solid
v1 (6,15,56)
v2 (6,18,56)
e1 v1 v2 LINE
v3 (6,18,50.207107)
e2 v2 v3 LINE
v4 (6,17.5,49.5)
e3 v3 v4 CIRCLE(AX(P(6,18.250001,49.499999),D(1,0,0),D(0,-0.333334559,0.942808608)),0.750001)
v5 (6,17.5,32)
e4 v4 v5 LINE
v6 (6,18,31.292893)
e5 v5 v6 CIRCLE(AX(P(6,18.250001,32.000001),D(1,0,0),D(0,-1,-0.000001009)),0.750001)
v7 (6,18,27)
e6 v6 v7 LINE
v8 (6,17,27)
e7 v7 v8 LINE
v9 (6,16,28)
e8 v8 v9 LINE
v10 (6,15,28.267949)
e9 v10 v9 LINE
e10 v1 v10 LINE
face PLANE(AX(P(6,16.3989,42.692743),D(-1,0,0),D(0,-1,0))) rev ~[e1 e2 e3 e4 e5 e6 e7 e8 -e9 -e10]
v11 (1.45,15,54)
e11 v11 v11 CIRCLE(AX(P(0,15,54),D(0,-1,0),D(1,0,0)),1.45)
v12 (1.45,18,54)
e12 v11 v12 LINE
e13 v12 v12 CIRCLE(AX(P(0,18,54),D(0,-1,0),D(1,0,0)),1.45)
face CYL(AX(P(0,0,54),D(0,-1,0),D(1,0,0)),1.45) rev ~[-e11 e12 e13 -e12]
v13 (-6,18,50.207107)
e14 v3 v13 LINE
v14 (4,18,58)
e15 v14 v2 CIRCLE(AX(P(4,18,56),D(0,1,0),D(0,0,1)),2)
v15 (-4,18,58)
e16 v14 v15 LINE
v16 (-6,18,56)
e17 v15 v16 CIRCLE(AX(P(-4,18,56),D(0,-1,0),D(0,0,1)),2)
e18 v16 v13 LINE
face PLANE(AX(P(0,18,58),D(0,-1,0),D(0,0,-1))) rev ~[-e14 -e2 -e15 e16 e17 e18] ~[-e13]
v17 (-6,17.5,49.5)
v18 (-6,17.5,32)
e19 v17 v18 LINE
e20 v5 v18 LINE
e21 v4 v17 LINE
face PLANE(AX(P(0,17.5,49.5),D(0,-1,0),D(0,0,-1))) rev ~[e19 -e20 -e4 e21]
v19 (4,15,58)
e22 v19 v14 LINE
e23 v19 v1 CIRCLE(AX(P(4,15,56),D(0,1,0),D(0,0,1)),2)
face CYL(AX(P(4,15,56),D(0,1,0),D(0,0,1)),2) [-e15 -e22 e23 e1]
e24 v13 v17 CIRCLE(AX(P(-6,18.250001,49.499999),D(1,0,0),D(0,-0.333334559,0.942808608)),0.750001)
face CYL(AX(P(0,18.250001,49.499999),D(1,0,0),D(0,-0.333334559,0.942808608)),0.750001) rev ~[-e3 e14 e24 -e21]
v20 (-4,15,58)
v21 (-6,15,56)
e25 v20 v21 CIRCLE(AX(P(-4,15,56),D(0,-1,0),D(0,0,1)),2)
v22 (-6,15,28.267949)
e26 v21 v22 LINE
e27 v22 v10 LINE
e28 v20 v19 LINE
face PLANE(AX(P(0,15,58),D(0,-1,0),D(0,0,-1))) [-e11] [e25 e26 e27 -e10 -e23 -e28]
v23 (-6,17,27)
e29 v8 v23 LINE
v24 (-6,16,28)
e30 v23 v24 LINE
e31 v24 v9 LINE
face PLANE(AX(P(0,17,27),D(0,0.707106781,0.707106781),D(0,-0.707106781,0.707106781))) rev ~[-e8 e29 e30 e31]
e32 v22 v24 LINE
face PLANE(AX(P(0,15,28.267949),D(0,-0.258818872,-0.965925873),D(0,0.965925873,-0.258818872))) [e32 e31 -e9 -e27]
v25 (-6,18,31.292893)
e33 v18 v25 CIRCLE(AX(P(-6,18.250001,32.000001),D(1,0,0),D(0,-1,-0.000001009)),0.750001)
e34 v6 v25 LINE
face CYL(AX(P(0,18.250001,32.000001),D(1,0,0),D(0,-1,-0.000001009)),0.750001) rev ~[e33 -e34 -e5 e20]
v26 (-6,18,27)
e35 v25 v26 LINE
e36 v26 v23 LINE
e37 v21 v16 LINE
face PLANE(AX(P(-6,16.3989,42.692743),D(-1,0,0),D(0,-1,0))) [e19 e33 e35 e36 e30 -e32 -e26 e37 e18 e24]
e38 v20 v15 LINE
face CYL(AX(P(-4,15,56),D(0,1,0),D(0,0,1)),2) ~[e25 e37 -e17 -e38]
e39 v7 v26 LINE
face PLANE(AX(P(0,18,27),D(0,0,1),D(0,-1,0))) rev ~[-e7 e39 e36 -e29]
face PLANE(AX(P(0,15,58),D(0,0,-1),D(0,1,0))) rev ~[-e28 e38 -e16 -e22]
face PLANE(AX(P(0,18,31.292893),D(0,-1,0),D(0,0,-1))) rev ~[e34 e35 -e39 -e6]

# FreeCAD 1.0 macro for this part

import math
import FreeCAD as App
import Part
import Sketcher

V = App.Vector
Q = App.Units.Quantity


def edges_at(feature, points):
    """Names of the edges that pass closest to the given points."""
    edges = feature.Shape.Edges
    near = lambda p: min(range(len(edges)), key=lambda i: edges[i].distToShape(Part.Vertex(*p))[0])
    return sorted({f"Edge{near(p) + 1}" for p in points})

doc = App.newDocument("Part")
params = doc.addObject("Spreadsheet::Sheet", "Params")
for row, (alias, value) in enumerate([
    ("sketch1_width", "3 mm"),
    ("sketch1_width2", "1 mm"),
    ("sketch1_radius", "0.750001 mm"),
    ("sketch1_height", "17.5 mm"),
    ("pad1_length", "12 mm"),
    ("fillet_radius", "2 mm"),
    ("sketch2_diameter", "2.9 mm"),
], start=1):
    params.set(f"A{row}", alias)
    params.set(f"B{row}", "=" + value)
    params.setAlias(f"B{row}", alias)

body = doc.addObject("PartDesign::Body", "Body")

# Sketch on YZ plane
sketch1 = body.newObject("Sketcher::SketchObject", "Sketch")
sketch1.AttachmentSupport = (doc.getObject("YZ_Plane"), [""])
sketch1.MapMode = "FlatFace"
sketch1.addGeometry([
    Part.LineSegment(V(18, 58, 0), V(15, 58, 0)),  # 0
    Part.LineSegment(V(15, 58, 0), V(15, 28.3, 0)),  # 1
    Part.LineSegment(V(15, 28.3, 0), V(16, 28, 0)),  # 2
    Part.LineSegment(V(16, 28, 0), V(17, 27, 0)),  # 3
    Part.LineSegment(V(17, 27, 0), V(18, 27, 0)),  # 4
    Part.LineSegment(V(18, 27, 0), V(18, 31.3, 0)),  # 5
    Part.ArcOfCircle(Part.Circle(V(18.3, 32, 0), V(0, 0, 1), 0.8), math.radians(-180), math.radians(-109)),  # 6
    Part.LineSegment(V(17.5, 32, 0), V(17.5, 49.5, 0)),  # 7
    Part.ArcOfCircle(Part.Circle(V(18.3, 49.5, 0), V(0, 0, 1), 0.8), math.radians(109), math.radians(180)),  # 8
    Part.LineSegment(V(18, 50.2, 0), V(18, 58, 0)),  # 9
], False)
sketch1.addConstraint([
    Sketcher.Constraint("Coincident", 0, 2, 1, 1),
    Sketcher.Constraint("Coincident", 1, 2, 2, 1),
    Sketcher.Constraint("Coincident", 2, 2, 3, 1),
    Sketcher.Constraint("Coincident", 3, 2, 4, 1),
    Sketcher.Constraint("Coincident", 4, 2, 5, 1),
    Sketcher.Constraint("Coincident", 5, 2, 6, 2),
    Sketcher.Constraint("Tangent", 6, 1, 7, 1),
    Sketcher.Constraint("Tangent", 7, 2, 8, 2),
    Sketcher.Constraint("Coincident", 8, 1, 9, 1),
    Sketcher.Constraint("Coincident", 9, 2, 0, 1),
    Sketcher.Constraint("Horizontal", 0),
    Sketcher.Constraint("Vertical", 1),
    Sketcher.Constraint("Horizontal", 4),
    Sketcher.Constraint("Vertical", 5),
    Sketcher.Constraint("Vertical", 7),
    Sketcher.Constraint("Vertical", 9),
    Sketcher.Constraint("Equal", 6, 8),
    Sketcher.Constraint("Vertical", 5, 2, 8, 1),
    Sketcher.Constraint("DistanceX", 0, 2, 0, 1, 3.0),
    Sketcher.Constraint("DistanceX", 4, 1, 4, 2, 1.0),
    Sketcher.Constraint("Angle", 2, Q("-14.99999 deg")),
    Sketcher.Constraint("Angle", 3, Q("-45 deg")),
    Sketcher.Constraint("Radius", 6, 0.750001),
    Sketcher.Constraint("DistanceY", 7, 1, 7, 2, 17.5),
    Sketcher.Constraint("DistanceY", -1, 1, 6, 3, 32.000001),
    Sketcher.Constraint("DistanceX", -1, 1, 0, 2, 15.0),
    Sketcher.Constraint("DistanceY", -1, 1, 0, 2, 58.0),
    Sketcher.Constraint("DistanceX", -1, 1, 2, 2, 16.0),
    Sketcher.Constraint("DistanceY", -1, 1, 2, 2, 28.0),
    Sketcher.Constraint("DistanceX", -1, 1, 6, 1, 17.5),
])
sketch1.setExpression("Constraints[18]", "Params.sketch1_width")
sketch1.setExpression("Constraints[19]", "Params.sketch1_width2")
sketch1.setExpression("Constraints[22]", "Params.sketch1_radius")
sketch1.setExpression("Constraints[23]", "Params.sketch1_height")
pad1 = body.newObject("PartDesign::Pad", "Pad")
pad1.Profile = sketch1
pad1.setExpression("Length", "Params.pad1_length")
pad1.Midplane = True
doc.recompute()

fillet = body.newObject("PartDesign::Fillet", "Fillet")
fillet.Base = (pad1, edges_at(pad1, [(6, 16.5, 58), (-6, 16.5, 58)]))
fillet.setExpression("Radius", "Params.fillet_radius")

# Sketch on XZ plane
sketch2 = body.newObject("Sketcher::SketchObject", "Sketch001")
sketch2.AttachmentSupport = (doc.getObject("XZ_Plane"), [""])
sketch2.MapMode = "FlatFace"
sketch2.addGeometry(Part.Circle(V(0, 54, 0), V(0, 0, 1), 1.4), False)
sketch2.addConstraint([
    Sketcher.Constraint("PointOnObject", 0, 3, -2),
    Sketcher.Constraint("Diameter", 0, 2.9),
    Sketcher.Constraint("DistanceY", -1, 1, 0, 3, 54.0),
])
sketch2.setExpression("Constraints[1]", "Params.sketch2_diameter")
pocket1 = body.newObject("PartDesign::Pocket", "Pocket")
pocket1.Profile = sketch2
pocket1.Type = "ThroughAll"
pocket1.Midplane = True

doc.recompute()
